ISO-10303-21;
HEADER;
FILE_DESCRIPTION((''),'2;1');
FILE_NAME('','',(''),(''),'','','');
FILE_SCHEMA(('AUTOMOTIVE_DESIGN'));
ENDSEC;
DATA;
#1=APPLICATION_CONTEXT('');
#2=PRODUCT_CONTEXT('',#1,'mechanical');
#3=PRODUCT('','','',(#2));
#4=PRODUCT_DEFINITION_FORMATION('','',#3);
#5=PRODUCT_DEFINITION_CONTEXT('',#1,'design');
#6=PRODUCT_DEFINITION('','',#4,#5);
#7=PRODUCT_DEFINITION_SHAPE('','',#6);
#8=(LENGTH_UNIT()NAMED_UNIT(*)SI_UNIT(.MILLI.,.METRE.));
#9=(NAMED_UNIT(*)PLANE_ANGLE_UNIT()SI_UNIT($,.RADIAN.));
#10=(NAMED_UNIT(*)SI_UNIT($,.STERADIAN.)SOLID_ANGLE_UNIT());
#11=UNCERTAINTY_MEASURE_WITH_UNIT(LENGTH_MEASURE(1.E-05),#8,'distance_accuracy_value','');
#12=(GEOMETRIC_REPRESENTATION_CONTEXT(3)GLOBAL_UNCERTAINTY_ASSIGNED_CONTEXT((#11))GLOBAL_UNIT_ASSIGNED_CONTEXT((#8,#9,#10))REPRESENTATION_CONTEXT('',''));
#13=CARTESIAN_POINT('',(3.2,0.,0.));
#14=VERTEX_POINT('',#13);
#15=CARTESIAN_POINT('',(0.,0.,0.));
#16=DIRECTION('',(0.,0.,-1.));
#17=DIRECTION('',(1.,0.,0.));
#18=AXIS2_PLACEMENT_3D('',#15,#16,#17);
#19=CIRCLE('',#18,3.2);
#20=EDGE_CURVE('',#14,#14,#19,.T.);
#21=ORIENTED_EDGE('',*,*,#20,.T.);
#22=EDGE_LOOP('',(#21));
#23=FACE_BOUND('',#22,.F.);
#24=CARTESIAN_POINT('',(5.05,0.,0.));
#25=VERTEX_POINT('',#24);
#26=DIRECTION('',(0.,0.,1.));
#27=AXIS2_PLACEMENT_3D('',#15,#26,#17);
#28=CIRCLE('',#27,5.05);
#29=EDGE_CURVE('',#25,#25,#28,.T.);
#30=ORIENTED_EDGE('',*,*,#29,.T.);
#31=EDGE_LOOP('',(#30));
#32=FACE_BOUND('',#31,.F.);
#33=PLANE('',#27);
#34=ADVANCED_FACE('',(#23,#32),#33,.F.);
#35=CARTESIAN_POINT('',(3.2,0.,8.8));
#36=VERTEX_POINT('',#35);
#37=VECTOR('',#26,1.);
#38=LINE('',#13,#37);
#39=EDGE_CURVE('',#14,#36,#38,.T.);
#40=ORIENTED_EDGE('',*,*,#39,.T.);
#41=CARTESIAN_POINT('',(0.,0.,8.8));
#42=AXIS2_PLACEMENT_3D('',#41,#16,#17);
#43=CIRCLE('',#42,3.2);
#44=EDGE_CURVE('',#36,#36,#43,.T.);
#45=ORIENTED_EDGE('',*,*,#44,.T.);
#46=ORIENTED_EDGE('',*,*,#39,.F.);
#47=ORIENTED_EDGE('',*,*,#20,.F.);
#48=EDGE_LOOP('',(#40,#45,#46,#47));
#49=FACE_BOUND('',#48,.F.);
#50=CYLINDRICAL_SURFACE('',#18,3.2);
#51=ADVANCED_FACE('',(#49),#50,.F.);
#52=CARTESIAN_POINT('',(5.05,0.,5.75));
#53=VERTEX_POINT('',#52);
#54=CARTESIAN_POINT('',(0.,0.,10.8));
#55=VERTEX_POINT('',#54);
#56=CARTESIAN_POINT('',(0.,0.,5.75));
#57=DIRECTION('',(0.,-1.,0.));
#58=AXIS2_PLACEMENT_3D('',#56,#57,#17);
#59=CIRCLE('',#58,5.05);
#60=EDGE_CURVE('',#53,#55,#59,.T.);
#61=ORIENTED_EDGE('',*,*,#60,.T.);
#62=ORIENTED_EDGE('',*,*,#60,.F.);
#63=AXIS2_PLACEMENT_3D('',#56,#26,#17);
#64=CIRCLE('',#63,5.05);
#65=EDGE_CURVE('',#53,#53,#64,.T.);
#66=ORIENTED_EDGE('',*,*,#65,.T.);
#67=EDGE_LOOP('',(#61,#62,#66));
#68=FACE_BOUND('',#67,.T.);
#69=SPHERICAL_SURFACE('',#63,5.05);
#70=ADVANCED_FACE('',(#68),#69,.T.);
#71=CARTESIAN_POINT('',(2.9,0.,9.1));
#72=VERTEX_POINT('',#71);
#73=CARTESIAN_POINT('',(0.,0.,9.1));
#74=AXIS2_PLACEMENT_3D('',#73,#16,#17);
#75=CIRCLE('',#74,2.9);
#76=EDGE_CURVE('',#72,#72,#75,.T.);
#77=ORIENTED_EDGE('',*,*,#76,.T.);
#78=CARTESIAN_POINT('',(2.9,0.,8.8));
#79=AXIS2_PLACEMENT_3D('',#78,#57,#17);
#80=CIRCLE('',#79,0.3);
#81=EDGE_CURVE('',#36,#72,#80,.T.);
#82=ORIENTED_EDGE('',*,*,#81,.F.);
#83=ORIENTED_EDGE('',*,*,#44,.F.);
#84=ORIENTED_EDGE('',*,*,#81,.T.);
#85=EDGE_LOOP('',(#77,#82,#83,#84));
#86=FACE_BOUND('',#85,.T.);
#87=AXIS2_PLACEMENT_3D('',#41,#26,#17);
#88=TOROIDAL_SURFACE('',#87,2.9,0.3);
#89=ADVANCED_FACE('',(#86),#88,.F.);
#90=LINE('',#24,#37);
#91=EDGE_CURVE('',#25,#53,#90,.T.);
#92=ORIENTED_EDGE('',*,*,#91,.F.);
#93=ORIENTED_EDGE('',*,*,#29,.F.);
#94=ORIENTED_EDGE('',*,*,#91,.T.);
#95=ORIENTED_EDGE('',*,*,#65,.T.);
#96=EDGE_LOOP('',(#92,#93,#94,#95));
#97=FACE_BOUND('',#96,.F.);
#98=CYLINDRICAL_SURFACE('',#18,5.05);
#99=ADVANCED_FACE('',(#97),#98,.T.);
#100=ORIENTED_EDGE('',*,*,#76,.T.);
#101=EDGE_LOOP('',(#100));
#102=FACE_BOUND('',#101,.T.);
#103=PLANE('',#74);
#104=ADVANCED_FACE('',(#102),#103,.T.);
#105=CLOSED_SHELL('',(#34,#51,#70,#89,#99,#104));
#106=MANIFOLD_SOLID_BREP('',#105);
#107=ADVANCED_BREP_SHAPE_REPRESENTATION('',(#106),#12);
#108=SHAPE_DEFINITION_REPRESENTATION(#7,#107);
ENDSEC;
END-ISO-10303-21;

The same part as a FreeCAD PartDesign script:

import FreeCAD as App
import Part
import Sketcher
from FreeCAD import Vector
Q = App.Units.Quantity


def edges_at(feature, points):
    """Names of the edges that pass closest to the given points."""
    edges = feature.Shape.Edges
    near = lambda p: min(range(len(edges)), key=lambda i: edges[i].distToShape(Part.Vertex(*p))[0])
    return sorted({f"Edge{near(p) + 1}" for p in points})

doc = App.newDocument("Part")
body = doc.addObject("PartDesign::Body", "Body")

sketch1 = body.newObject("Sketcher::SketchObject", "Sketch")
sketch1.AttachmentSupport = (doc.getObject("XY_Plane"), [""])
sketch1.MapMode = "FlatFace"
sketch1.addGeometry(Part.Circle(Vector(0, 0, 0), Vector(0, 0, 1), 5), False)
sketch1.addConstraint(Sketcher.Constraint("Coincident", 0, 3, -1, 1))
sketch1.addConstraint(Sketcher.Constraint("Diameter", 0, Q("10.1 mm")))
pad1 = body.newObject("PartDesign::Pad", "Pad")
pad1.Profile = sketch1
pad1.Length = 10.8
doc.recompute()

fillet = body.newObject("PartDesign::Fillet", "Fillet")
fillet.Base = (pad1, edges_at(pad1, [(-5.05, 0, 10.8)]))
fillet.Radius = 5.05

sketch2 = body.newObject("Sketcher::SketchObject", "Sketch001")
sketch2.AttachmentSupport = (doc.getObject("XY_Plane"), [""])
sketch2.MapMode = "FlatFace"
sketch2.addGeometry(Part.Circle(Vector(0, 0, 0), Vector(0, 0, 1), 3.2), False)
sketch2.addConstraint(Sketcher.Constraint("Coincident", 0, 3, -1, 1))
sketch2.addConstraint(Sketcher.Constraint("Diameter", 0, Q("6.4 mm")))
pocket1 = body.newObject("PartDesign::Pocket", "Pocket")
pocket1.Profile = sketch2
pocket1.Length = 9.1
pocket1.Reversed = True
doc.recompute()

fillet2 = body.newObject("PartDesign::Fillet", "Fillet001")
fillet2.Base = (pocket1, edges_at(pocket1, [(-3.2, 0, 9.1)]))
fillet2.Radius = 0.3

doc.recompute()
